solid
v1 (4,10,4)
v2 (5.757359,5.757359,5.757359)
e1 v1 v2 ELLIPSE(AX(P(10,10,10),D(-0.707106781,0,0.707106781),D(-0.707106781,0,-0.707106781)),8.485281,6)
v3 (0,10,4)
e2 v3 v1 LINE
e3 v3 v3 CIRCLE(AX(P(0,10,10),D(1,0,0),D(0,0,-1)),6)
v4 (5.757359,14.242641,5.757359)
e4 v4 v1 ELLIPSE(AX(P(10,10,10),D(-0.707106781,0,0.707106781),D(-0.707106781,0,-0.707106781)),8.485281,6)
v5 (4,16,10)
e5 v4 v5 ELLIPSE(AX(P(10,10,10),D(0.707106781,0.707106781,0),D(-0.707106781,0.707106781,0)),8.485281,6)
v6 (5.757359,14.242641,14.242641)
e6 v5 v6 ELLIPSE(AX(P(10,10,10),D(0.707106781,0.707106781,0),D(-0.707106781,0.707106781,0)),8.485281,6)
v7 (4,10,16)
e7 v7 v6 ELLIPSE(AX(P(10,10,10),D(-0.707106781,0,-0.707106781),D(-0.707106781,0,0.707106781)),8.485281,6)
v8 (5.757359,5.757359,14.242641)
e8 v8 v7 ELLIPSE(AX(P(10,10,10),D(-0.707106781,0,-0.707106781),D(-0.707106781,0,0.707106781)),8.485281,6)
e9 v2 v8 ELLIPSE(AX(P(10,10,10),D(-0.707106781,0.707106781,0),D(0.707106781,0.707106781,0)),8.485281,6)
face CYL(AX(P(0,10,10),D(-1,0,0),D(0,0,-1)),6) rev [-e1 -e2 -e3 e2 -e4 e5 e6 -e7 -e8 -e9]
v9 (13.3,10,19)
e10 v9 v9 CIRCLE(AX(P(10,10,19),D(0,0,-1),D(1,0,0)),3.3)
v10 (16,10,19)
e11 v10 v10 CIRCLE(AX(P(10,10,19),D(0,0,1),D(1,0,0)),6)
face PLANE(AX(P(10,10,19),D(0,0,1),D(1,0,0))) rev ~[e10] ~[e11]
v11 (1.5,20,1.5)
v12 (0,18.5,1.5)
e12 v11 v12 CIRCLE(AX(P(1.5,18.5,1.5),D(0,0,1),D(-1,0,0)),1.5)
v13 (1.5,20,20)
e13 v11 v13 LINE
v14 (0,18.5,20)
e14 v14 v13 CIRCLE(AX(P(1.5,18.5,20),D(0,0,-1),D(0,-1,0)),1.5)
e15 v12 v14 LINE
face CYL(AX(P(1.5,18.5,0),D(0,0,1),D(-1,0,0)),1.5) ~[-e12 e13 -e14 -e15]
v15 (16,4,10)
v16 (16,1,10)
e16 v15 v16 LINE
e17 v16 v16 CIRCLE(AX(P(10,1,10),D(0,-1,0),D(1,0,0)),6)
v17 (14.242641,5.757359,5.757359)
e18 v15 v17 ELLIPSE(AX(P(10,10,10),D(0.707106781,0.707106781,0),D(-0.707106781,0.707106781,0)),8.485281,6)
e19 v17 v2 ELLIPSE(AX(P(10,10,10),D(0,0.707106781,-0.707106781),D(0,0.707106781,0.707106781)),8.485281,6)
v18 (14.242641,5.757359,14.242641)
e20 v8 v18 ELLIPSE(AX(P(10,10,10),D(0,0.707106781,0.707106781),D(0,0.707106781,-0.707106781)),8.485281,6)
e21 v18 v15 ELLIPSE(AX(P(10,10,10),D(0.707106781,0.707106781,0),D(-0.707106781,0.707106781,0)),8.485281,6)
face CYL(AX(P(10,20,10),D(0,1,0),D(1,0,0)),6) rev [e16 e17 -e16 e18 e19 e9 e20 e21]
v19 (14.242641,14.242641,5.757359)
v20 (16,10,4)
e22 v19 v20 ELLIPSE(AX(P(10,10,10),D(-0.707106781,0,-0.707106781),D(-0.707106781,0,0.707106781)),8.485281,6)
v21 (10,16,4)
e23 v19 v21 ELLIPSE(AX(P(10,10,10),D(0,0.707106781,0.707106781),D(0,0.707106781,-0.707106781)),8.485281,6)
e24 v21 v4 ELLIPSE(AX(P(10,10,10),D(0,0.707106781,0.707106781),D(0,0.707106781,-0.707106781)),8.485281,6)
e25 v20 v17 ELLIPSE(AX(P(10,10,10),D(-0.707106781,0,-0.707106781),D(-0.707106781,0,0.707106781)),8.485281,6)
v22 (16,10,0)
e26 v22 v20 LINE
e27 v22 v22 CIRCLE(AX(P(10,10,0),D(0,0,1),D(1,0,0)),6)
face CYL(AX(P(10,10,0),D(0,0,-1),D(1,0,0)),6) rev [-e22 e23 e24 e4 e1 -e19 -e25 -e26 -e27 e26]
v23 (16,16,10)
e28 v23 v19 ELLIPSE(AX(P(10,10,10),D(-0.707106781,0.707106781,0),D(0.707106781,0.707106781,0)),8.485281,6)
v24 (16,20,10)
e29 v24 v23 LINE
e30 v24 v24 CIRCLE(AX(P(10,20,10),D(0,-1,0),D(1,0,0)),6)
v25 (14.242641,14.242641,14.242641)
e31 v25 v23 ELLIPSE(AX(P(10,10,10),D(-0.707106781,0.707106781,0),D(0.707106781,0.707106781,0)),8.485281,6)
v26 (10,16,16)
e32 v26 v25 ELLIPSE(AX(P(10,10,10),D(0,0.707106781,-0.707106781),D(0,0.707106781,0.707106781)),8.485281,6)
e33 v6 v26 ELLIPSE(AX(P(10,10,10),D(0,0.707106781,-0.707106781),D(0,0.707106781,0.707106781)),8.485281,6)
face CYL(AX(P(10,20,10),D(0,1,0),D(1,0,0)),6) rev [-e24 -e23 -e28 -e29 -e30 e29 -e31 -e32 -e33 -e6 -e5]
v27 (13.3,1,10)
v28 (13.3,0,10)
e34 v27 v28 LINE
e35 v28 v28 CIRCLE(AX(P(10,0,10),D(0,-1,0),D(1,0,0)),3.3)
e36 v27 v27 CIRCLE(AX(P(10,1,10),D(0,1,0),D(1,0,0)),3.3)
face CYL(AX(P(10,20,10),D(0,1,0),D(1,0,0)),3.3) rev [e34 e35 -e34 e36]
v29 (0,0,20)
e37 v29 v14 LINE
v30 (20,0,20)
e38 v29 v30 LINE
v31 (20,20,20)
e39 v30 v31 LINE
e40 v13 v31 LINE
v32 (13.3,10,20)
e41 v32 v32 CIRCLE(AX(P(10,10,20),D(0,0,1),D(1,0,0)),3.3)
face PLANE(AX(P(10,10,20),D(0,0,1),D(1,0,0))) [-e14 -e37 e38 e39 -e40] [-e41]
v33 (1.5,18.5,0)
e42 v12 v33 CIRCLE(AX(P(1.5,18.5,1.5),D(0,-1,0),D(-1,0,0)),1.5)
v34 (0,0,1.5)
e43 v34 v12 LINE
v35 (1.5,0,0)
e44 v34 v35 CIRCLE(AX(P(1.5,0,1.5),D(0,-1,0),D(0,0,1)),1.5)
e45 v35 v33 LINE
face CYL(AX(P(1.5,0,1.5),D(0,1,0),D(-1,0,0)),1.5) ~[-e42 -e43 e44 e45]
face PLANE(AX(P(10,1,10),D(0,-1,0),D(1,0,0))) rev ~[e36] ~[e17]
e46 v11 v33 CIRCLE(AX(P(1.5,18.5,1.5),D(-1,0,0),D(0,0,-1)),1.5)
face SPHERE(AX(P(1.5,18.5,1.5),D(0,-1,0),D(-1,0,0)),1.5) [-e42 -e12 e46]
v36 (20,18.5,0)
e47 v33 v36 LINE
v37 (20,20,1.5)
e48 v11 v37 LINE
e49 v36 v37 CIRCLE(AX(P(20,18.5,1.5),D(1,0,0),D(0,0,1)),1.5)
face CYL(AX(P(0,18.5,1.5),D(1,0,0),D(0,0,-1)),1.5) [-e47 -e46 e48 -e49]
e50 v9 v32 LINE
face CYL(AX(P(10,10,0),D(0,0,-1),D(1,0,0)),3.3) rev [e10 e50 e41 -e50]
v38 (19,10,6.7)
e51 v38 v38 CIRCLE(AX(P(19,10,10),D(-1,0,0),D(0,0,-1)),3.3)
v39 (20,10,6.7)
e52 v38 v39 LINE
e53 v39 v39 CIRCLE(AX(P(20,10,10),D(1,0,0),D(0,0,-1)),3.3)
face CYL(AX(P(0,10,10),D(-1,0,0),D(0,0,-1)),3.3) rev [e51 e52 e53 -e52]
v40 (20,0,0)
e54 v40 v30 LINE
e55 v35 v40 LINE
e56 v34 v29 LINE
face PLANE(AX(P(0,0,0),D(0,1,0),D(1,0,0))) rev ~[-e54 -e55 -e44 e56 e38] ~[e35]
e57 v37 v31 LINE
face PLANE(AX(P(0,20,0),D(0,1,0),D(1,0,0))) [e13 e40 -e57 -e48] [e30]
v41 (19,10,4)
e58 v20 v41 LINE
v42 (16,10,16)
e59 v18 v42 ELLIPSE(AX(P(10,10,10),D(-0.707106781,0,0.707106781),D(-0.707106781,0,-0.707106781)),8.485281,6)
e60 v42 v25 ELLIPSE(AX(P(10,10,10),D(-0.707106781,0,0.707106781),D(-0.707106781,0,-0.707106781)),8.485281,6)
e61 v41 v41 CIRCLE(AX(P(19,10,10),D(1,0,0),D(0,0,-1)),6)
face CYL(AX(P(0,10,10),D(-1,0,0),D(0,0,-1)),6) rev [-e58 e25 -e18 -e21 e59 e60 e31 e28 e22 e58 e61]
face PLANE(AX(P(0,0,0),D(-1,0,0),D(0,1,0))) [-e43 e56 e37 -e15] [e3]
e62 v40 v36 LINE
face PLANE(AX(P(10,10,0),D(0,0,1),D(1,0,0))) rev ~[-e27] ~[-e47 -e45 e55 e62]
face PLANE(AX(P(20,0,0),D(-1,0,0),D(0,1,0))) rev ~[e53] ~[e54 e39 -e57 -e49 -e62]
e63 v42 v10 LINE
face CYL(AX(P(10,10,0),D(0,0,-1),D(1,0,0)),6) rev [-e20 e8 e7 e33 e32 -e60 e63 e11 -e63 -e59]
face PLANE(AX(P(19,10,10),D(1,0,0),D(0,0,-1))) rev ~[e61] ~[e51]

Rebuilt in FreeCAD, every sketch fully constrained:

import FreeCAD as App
import Part
import Sketcher
from FreeCAD import Vector


def edges_at(feature, points):
    """Names of the edges that pass closest to the given points."""
    edges = feature.Shape.Edges
    near = lambda p: min(range(len(edges)), key=lambda i: edges[i].distToShape(Part.Vertex(*p))[0])
    return sorted({f"Edge{near(p) + 1}" for p in points})


def add_polygon(sketch, points):
    """Adds a closed chain of lines whose ends are joined by coincident constraints."""
    first, n = sketch.GeometryCount, len(points)
    for a, b in zip(points, points[1:] + points[:1]):
        sketch.addGeometry(Part.LineSegment(App.Vector(*a, 0), App.Vector(*b, 0)), False)
    for i in range(n):
        sketch.addConstraint(Sketcher.Constraint("Coincident", first + i, 2, first + (i + 1) % n, 1))

doc = App.newDocument("Part")
params = doc.addObject("Spreadsheet::Sheet", "Params")
for row, (alias, value) in enumerate([
    ("sketch1_diameter", "6.6 mm"),
    ("pad1_length", "20 mm"),
    ("sketch2_diameter", "6.6 mm"),
    ("pad2_length", "20 mm"),
    ("sketch3_diameter", "6.6 mm"),
    ("pad3_length", "20 mm"),
    ("sketch4_diameter", "12 mm"),
    ("pad4_length", "19 mm"),
    ("sketch5_diameter", "12 mm"),
    ("pad5_length", "19 mm"),
    ("sketch6_diameter", "12 mm"),
    ("pad6_length", "19 mm"),
    ("sketch7_width", "20 mm"),
    ("pad7_length", "20 mm"),
    ("fillet_radius", "1.5 mm"),
], start=1):
    params.set(f"A{row}", alias)
    params.set(f"B{row}", "=" + value)
    params.setAlias(f"B{row}", alias)

body = doc.addObject("PartDesign::Body", "Body")

# Sketch on XY plane
sketch1 = doc.addObject("Sketcher::SketchObject", "Sketch")
body.addObject(sketch1)
sketch1.AttachmentSupport = (doc.XY_Plane, [""])
sketch1.MapMode = "FlatFace"
sketch1.addGeometry(Part.Circle(Vector(10, 10, 0), Vector(0, 0, 1), 3.3), False)
sketch1.addConstraint([
    Sketcher.Constraint("Diameter", 0, 6.6),
    Sketcher.Constraint("DistanceX", -1, 1, 0, 3, 10.0),
    Sketcher.Constraint("DistanceY", -1, 1, 0, 3, 10.0),
])
sketch1.setExpression("Constraints[0]", "Params.sketch1_diameter")
pad1 = doc.addObject("PartDesign::Pad", "Pad")
body.addObject(pad1)
pad1.Profile = sketch1
pad1.setExpression("Length", "Params.pad1_length")
body2 = doc.addObject("PartDesign::Body", "Body001")

# Sketch on XZ plane
sketch2 = doc.addObject("Sketcher::SketchObject", "Sketch001")
body2.addObject(sketch2)
sketch2.AttachmentSupport = (doc.getObject("XZ_Plane001"), [""])
sketch2.MapMode = "FlatFace"
sketch2.AttachmentOffset = App.Placement(Vector(0, 0, -20), App.Rotation())
sketch2.addGeometry(Part.Circle(Vector(10, 10, 0), Vector(0, 0, 1), 3.3), False)
sketch2.addConstraint([
    Sketcher.Constraint("Diameter", 0, 6.6),
    Sketcher.Constraint("DistanceX", -1, 1, 0, 3, 10.0),
    Sketcher.Constraint("DistanceY", -1, 1, 0, 3, 10.0),
])
sketch2.setExpression("Constraints[0]", "Params.sketch2_diameter")
pad2 = doc.addObject("PartDesign::Pad", "Pad001")
body2.addObject(pad2)
pad2.Profile = sketch2
pad2.setExpression("Length", "Params.pad2_length")
body3 = doc.addObject("PartDesign::Body", "Body002")

# Sketch on YZ plane
sketch3 = doc.addObject("Sketcher::SketchObject", "Sketch002")
body3.addObject(sketch3)
sketch3.AttachmentSupport = (doc.getObject("YZ_Plane002"), [""])
sketch3.MapMode = "FlatFace"
sketch3.addGeometry(Part.Circle(Vector(10, 10, 0), Vector(0, 0, 1), 3.3), False)
sketch3.addConstraint([
    Sketcher.Constraint("Diameter", 0, 6.6),
    Sketcher.Constraint("DistanceX", -1, 1, 0, 3, 10.0),
    Sketcher.Constraint("DistanceY", -1, 1, 0, 3, 10.0),
])
sketch3.setExpression("Constraints[0]", "Params.sketch3_diameter")
pad3 = doc.addObject("PartDesign::Pad", "Pad002")
body3.addObject(pad3)
pad3.Profile = sketch3
pad3.setExpression("Length", "Params.pad3_length")
body4 = doc.addObject("PartDesign::Body", "Body003")

# Sketch on YZ plane
sketch4 = doc.addObject("Sketcher::SketchObject", "Sketch003")
body4.addObject(sketch4)
sketch4.AttachmentSupport = (doc.getObject("YZ_Plane003"), [""])
sketch4.MapMode = "FlatFace"
sketch4.addGeometry(Part.Circle(Vector(10, 10, 0), Vector(0, 0, 1), 6), False)
sketch4.addConstraint([
    Sketcher.Constraint("Diameter", 0, 12.0),
    Sketcher.Constraint("DistanceX", -1, 1, 0, 3, 10.0),
    Sketcher.Constraint("DistanceY", -1, 1, 0, 3, 10.0),
])
sketch4.setExpression("Constraints[0]", "Params.sketch4_diameter")
pad4 = doc.addObject("PartDesign::Pad", "Pad003")
body4.addObject(pad4)
pad4.Profile = sketch4
pad4.setExpression("Length", "Params.pad4_length")
body5 = doc.addObject("PartDesign::Body", "Body004")

# Sketch on XY plane
sketch5 = doc.addObject("Sketcher::SketchObject", "Sketch004")
body5.addObject(sketch5)
sketch5.AttachmentSupport = (doc.getObject("XY_Plane004"), [""])
sketch5.MapMode = "FlatFace"
sketch5.addGeometry(Part.Circle(Vector(10, 10, 0), Vector(0, 0, 1), 6), False)
sketch5.addConstraint([
    Sketcher.Constraint("Diameter", 0, 12.0),
    Sketcher.Constraint("DistanceX", -1, 1, 0, 3, 10.0),
    Sketcher.Constraint("DistanceY", -1, 1, 0, 3, 10.0),
])
sketch5.setExpression("Constraints[0]", "Params.sketch5_diameter")
pad5 = doc.addObject("PartDesign::Pad", "Pad004")
body5.addObject(pad5)
pad5.Profile = sketch5
pad5.setExpression("Length", "Params.pad5_length")
body6 = doc.addObject("PartDesign::Body", "Body005")

# Sketch on XZ plane
sketch6 = doc.addObject("Sketcher::SketchObject", "Sketch005")
body6.addObject(sketch6)
sketch6.AttachmentSupport = (doc.getObject("XZ_Plane005"), [""])
sketch6.MapMode = "FlatFace"
sketch6.AttachmentOffset = App.Placement(Vector(0, 0, -20), App.Rotation())
sketch6.addGeometry(Part.Circle(Vector(10, 10, 0), Vector(0, 0, 1), 6), False)
sketch6.addConstraint([
    Sketcher.Constraint("Diameter", 0, 12.0),
    Sketcher.Constraint("DistanceX", -1, 1, 0, 3, 10.0),
    Sketcher.Constraint("DistanceY", -1, 1, 0, 3, 10.0),
])
sketch6.setExpression("Constraints[0]", "Params.sketch6_diameter")
pad6 = doc.addObject("PartDesign::Pad", "Pad005")
body6.addObject(pad6)
pad6.Profile = sketch6
pad6.setExpression("Length", "Params.pad6_length")
doc.recompute()

boolean = doc.addObject("PartDesign::Boolean", "Boolean")
body6.addObject(boolean)
boolean.Type = "Fuse"
boolean.addObjects([body])
doc.recompute()

boolean2 = doc.addObject("PartDesign::Boolean", "Boolean001")
body6.addObject(boolean2)
boolean2.Type = "Fuse"
boolean2.addObjects([body2])
doc.recompute()

boolean3 = doc.addObject("PartDesign::Boolean", "Boolean002")
body6.addObject(boolean3)
boolean3.Type = "Fuse"
boolean3.addObjects([body3])
doc.recompute()

boolean4 = doc.addObject("PartDesign::Boolean", "Boolean003")
body6.addObject(boolean4)
boolean4.Type = "Fuse"
boolean4.addObjects([body4])
doc.recompute()

boolean5 = doc.addObject("PartDesign::Boolean", "Boolean004")
body6.addObject(boolean5)
boolean5.Type = "Fuse"
boolean5.addObjects([body5])
body7 = doc.addObject("PartDesign::Body", "Body006")

# Sketch on XY plane
sketch7 = doc.addObject("Sketcher::SketchObject", "Sketch006")
body7.addObject(sketch7)
sketch7.AttachmentSupport = (doc.getObject("XY_Plane006"), [""])
sketch7.MapMode = "FlatFace"
add_polygon(sketch7, [(0, 20), (0, 0), (20, 0), (20, 20)])  # lines 0-3
sketch7.addConstraint([
    Sketcher.Constraint("Vertical", 0),
    Sketcher.Constraint("Horizontal", 1),
    Sketcher.Constraint("Vertical", 2),
    Sketcher.Constraint("Horizontal", 3),
    Sketcher.Constraint("Coincident", 0, 2, -1, 1),
    Sketcher.Constraint("Equal", 3, 0),
    Sketcher.Constraint("DistanceX", 1, 1, 1, 2, 20.0),
])
sketch7.setExpression("Constraints[10]", "Params.sketch7_width")
pad7 = doc.addObject("PartDesign::Pad", "Pad006")
body7.addObject(pad7)
pad7.Profile = sketch7
pad7.setExpression("Length", "Params.pad7_length")
doc.recompute()

boolean6 = doc.addObject("PartDesign::Boolean", "Boolean005")
body7.addObject(boolean6)
boolean6.Type = "Cut"
boolean6.addObjects([body6])
doc.recompute()

fillet = doc.addObject("PartDesign::Fillet", "Fillet")
body7.addObject(fillet)
fillet.Base = (boolean6, edges_at(boolean6, [(0, 10, 0), (0, 20, 10), (10, 20, 0)]))
fillet.setExpression("Radius", "Params.fillet_radius")

doc.recompute()
